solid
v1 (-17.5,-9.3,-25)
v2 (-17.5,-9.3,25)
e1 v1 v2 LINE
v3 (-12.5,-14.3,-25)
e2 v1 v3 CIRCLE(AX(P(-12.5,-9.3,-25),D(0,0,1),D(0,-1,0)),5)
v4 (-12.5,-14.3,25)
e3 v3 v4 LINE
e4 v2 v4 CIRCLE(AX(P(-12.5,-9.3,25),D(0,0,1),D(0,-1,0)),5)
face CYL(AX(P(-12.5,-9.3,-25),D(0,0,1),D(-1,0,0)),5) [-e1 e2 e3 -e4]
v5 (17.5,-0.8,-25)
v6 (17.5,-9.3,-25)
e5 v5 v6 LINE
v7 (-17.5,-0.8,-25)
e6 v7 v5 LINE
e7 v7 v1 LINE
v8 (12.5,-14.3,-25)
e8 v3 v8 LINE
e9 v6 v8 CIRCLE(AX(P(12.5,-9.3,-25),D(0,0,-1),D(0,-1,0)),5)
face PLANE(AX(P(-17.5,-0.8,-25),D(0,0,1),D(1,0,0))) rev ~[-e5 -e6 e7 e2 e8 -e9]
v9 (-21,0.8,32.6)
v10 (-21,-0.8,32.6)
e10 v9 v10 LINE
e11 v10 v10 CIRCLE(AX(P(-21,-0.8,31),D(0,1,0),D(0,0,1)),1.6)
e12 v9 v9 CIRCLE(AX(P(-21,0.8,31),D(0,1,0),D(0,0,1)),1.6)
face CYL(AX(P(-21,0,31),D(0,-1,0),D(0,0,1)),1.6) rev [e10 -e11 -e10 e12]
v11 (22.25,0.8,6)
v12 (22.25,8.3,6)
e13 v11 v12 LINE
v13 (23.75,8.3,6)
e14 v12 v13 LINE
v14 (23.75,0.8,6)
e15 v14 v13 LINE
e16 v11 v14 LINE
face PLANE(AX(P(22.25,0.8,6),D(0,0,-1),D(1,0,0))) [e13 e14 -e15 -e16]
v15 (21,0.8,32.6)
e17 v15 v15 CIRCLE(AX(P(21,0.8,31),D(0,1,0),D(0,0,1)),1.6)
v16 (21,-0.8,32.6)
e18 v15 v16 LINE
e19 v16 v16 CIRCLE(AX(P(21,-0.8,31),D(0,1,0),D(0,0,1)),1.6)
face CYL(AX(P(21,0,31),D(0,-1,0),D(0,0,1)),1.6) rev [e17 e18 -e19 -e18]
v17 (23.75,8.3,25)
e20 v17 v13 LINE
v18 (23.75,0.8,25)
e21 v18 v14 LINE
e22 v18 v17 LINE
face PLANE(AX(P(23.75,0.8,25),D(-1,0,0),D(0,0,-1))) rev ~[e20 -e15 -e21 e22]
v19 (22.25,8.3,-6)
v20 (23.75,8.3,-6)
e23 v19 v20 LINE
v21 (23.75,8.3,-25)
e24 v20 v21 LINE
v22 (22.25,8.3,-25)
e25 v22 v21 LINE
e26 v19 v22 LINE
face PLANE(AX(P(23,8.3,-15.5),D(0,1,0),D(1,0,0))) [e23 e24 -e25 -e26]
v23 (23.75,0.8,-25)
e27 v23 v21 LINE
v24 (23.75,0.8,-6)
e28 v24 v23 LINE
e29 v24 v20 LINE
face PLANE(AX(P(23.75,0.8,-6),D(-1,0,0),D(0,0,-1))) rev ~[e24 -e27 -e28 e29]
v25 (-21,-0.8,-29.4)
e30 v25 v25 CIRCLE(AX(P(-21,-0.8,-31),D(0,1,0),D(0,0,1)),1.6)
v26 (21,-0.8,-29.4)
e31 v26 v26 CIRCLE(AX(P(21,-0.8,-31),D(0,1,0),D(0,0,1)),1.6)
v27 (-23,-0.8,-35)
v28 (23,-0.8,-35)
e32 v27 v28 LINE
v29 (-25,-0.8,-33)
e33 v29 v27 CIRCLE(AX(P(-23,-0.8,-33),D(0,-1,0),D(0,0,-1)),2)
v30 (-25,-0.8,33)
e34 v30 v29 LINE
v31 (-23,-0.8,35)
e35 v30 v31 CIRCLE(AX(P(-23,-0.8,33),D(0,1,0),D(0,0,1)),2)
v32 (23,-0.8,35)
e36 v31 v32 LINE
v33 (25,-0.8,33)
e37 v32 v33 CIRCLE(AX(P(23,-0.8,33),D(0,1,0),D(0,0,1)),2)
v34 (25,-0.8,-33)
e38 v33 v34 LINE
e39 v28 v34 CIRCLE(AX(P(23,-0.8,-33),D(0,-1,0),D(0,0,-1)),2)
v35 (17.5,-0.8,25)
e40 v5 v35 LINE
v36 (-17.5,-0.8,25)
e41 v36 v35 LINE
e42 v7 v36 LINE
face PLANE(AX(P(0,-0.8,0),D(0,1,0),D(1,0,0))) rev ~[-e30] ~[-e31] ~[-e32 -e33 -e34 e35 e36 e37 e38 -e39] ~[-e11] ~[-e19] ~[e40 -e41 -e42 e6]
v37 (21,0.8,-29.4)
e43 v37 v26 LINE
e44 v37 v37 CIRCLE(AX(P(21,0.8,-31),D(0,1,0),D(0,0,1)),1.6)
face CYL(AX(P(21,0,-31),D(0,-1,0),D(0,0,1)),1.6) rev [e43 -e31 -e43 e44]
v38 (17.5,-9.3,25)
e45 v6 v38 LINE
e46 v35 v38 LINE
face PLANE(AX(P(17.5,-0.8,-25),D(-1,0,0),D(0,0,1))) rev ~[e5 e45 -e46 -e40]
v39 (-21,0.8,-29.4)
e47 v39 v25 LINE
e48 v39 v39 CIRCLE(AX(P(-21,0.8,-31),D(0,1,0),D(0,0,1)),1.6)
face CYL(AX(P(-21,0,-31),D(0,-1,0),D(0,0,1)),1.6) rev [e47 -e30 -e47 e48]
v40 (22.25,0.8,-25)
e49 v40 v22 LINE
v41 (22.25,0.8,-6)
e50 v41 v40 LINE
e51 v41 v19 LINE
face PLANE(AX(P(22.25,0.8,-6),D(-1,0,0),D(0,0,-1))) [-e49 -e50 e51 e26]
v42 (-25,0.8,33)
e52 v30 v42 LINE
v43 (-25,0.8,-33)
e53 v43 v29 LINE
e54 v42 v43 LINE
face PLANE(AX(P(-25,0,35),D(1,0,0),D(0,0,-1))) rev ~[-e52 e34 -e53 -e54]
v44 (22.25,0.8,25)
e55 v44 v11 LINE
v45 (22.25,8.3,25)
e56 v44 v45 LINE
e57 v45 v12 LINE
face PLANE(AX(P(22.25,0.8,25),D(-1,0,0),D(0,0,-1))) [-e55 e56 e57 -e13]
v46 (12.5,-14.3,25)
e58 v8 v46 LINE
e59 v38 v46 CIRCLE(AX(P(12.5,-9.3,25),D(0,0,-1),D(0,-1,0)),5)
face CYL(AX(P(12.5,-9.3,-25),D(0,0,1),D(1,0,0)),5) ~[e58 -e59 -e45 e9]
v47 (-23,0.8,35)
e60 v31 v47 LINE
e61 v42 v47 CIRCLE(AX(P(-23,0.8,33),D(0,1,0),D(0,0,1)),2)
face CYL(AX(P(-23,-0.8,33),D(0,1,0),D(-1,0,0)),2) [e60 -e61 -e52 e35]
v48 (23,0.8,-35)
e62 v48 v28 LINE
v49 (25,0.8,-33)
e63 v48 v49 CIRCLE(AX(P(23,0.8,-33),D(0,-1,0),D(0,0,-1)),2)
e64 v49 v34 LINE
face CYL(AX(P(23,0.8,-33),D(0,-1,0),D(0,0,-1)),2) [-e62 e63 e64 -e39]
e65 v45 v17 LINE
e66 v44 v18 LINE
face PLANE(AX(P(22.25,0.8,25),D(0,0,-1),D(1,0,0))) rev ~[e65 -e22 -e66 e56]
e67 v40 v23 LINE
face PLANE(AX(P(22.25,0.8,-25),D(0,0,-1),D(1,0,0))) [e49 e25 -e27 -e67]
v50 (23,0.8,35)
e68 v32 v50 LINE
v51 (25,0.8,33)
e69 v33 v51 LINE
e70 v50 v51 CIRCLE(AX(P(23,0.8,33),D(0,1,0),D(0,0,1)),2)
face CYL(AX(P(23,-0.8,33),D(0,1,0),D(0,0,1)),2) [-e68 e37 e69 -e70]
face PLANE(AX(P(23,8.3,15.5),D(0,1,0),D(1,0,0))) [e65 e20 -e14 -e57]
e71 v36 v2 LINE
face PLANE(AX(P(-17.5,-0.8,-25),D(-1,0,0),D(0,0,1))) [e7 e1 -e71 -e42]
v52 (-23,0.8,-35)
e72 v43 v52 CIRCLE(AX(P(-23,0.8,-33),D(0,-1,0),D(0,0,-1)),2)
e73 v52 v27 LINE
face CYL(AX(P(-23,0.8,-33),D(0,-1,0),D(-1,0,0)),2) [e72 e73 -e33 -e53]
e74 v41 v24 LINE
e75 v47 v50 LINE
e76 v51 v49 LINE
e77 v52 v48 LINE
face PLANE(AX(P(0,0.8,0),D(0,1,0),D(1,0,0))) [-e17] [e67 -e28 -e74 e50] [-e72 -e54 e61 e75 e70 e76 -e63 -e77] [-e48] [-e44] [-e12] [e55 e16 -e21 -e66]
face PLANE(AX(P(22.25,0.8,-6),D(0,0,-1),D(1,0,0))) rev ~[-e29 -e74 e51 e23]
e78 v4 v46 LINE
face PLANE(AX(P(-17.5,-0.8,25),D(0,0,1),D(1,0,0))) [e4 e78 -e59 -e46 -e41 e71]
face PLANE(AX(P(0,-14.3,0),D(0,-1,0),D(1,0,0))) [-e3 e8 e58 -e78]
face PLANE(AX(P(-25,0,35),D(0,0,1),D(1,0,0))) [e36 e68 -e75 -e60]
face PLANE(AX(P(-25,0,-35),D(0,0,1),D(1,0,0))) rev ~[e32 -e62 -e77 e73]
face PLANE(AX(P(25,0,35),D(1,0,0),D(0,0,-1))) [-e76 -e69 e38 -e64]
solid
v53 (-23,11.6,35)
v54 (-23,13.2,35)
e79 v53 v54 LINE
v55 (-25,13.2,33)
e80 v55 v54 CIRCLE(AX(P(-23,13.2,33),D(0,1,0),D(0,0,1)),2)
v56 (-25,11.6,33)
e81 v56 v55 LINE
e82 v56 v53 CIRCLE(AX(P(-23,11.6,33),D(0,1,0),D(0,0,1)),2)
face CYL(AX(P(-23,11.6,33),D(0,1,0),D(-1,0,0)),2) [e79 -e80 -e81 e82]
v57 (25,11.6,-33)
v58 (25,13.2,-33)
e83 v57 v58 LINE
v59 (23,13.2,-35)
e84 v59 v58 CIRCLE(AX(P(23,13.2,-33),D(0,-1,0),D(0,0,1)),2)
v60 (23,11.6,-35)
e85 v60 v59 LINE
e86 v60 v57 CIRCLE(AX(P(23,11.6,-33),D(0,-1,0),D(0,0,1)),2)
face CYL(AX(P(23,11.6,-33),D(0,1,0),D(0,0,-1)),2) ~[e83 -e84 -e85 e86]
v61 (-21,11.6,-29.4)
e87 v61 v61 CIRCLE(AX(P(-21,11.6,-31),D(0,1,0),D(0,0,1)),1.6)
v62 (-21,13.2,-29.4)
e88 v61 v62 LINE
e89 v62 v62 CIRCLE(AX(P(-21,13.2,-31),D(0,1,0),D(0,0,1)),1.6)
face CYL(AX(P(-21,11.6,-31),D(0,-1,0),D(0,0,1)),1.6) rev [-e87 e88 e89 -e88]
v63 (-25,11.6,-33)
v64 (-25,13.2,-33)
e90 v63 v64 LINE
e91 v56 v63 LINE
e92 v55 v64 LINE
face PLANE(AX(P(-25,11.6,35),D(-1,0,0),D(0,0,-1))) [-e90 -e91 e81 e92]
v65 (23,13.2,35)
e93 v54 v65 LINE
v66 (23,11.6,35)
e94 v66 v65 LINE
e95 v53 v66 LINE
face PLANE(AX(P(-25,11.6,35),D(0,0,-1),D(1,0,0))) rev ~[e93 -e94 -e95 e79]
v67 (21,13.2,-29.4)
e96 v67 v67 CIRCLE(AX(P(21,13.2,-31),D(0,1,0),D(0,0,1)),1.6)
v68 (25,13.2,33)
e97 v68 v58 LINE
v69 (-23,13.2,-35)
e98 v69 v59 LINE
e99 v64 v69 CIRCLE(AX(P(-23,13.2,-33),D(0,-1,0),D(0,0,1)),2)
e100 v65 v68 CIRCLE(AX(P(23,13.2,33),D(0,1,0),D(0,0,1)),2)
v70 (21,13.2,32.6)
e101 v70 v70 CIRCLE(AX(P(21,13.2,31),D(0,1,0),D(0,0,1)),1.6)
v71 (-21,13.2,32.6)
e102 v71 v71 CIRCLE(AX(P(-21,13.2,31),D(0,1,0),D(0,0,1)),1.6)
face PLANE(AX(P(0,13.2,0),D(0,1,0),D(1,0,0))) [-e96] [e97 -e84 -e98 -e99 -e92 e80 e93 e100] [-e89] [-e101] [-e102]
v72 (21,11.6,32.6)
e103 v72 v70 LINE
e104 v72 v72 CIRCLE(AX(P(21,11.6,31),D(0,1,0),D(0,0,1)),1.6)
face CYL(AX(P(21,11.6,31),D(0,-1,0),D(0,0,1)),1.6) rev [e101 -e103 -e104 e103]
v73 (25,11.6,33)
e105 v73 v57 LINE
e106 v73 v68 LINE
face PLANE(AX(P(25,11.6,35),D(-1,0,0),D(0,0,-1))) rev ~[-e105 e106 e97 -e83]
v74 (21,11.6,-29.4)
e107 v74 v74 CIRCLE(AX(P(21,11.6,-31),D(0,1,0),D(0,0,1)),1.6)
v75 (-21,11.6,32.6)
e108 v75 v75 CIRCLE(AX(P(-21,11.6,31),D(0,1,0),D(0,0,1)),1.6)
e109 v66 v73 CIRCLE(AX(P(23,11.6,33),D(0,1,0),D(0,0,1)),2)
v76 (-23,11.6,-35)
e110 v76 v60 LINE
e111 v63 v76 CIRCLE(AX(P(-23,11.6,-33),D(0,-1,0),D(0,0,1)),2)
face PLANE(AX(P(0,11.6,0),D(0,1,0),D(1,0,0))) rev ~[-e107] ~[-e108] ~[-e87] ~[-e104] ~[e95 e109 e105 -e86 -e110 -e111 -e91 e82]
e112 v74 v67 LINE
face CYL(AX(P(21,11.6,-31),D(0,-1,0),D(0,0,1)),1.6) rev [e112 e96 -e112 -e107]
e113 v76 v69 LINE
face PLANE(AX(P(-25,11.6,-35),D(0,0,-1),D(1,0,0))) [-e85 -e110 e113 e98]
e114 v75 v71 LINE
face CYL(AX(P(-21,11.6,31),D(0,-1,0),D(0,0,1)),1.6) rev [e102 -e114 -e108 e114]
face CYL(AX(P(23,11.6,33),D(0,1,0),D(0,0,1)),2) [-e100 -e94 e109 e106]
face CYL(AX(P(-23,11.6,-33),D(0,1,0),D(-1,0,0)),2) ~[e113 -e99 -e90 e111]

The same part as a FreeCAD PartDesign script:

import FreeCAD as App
import Part
import Sketcher
from FreeCAD import Vector


def edges_at(feature, points):
    """Names of the edges that pass closest to the given points."""
    edges = feature.Shape.Edges
    near = lambda p: min(range(len(edges)), key=lambda i: edges[i].distToShape(Part.Vertex(*p))[0])
    return sorted({f"Edge{near(p) + 1}" for p in points})


def add_polygon(sketch, points):
    """Adds a closed chain of lines whose ends are joined by coincident constraints."""
    first, n = sketch.GeometryCount, len(points)
    for a, b in zip(points, points[1:] + points[:1]):
        sketch.addGeometry(Part.LineSegment(App.Vector(*a, 0), App.Vector(*b, 0)), False)
    for i in range(n):
        sketch.addConstraint(Sketcher.Constraint("Coincident", first + i, 2, first + (i + 1) % n, 1))

doc = App.newDocument("Part")
body = doc.addObject("PartDesign::Body", "Body")

# Sketch on XZ plane
sketch1 = doc.addObject("Sketcher::SketchObject", "Sketch")
body.addObject(sketch1)
sketch1.AttachmentSupport = (doc.XZ_Plane, [""])
sketch1.MapMode = "FlatFace"
add_polygon(sketch1, [(-25, -35), (-25, 35), (25, 35), (25, -35)])  # lines 0-3
sketch1.addGeometry(Part.Circle(Vector(-21, 31, 0), Vector(0, 0, 1), 1.6), False)  # 4
sketch1.addGeometry(Part.Circle(Vector(21, 31, 0), Vector(0, 0, 1), 1.6), False)  # 5
sketch1.addGeometry(Part.Circle(Vector(-21, -31, 0), Vector(0, 0, 1), 1.6), False)  # 6
sketch1.addGeometry(Part.Circle(Vector(21, -31, 0), Vector(0, 0, 1), 1.6), False)  # 7
sketch1.addConstraint(Sketcher.Constraint("Vertical", 0))
sketch1.addConstraint(Sketcher.Constraint("Horizontal", 1))
sketch1.addConstraint(Sketcher.Constraint("Vertical", 2))
sketch1.addConstraint(Sketcher.Constraint("Horizontal", 3))
sketch1.addConstraint(Sketcher.Constraint("Equal", 4, 5))
sketch1.addConstraint(Sketcher.Constraint("Equal", 5, 6))
sketch1.addConstraint(Sketcher.Constraint("Equal", 6, 7))
sketch1.addConstraint(Sketcher.Constraint("Symmetric", 5, 3, 6, 3, -1, 1))
sketch1.addConstraint(Sketcher.Constraint("Symmetric", 4, 3, 7, 3, -1, 1))
sketch1.addConstraint(Sketcher.Constraint("Symmetric", 0, 2, 2, 2, -1, 1))
sketch1.addConstraint(Sketcher.Constraint("Symmetric", 4, 3, 5, 3, -2))
sketch1.addConstraint(Sketcher.Constraint("Diameter", 4, 3.2))
sketch1.addConstraint(Sketcher.Constraint("DistanceX", 1, 1, 1, 2, 50.0))
sketch1.addConstraint(Sketcher.Constraint("DistanceY", 0, 1, 0, 2, 70.0))
sketch1.addConstraint(Sketcher.Constraint("DistanceX", 4, 3, -1, 1, 21.0))
sketch1.addConstraint(Sketcher.Constraint("DistanceY", -1, 1, 4, 3, 31.0))
pad1 = doc.addObject("PartDesign::Pad", "Pad")
body.addObject(pad1)
pad1.Profile = sketch1
pad1.Length = 1.6
pad1.Midplane = True

# Sketch on XZ plane
sketch2 = doc.addObject("Sketcher::SketchObject", "Sketch001")
body.addObject(sketch2)
sketch2.AttachmentSupport = (doc.XZ_Plane, [""])
sketch2.MapMode = "FlatFace"
sketch2.AttachmentOffset = App.Placement(Vector(0, 0, -0.8), App.Rotation())
add_polygon(sketch2, [(22.2, -25), (22.2, -6), (23.8, -6), (23.8, -25)])  # lines 0-3
add_polygon(sketch2, [(22.2, 6), (22.2, 25), (23.8, 25), (23.8, 6)])  # lines 4-7
sketch2.addConstraint(Sketcher.Constraint("Vertical", 0))
sketch2.addConstraint(Sketcher.Constraint("Horizontal", 1))
sketch2.addConstraint(Sketcher.Constraint("Vertical", 2))
sketch2.addConstraint(Sketcher.Constraint("Horizontal", 3))
sketch2.addConstraint(Sketcher.Constraint("Vertical", 4))
sketch2.addConstraint(Sketcher.Constraint("Horizontal", 5))
sketch2.addConstraint(Sketcher.Constraint("Vertical", 6))
sketch2.addConstraint(Sketcher.Constraint("Horizontal", 7))
sketch2.addConstraint(Sketcher.Constraint("Symmetric", 3, 2, 4, 2, -1))
sketch2.addConstraint(Sketcher.Constraint("Symmetric", 1, 2, 6, 2, -1))
sketch2.addConstraint(Sketcher.Constraint("DistanceY", 0, 1, 0, 2, 19.0))
sketch2.addConstraint(Sketcher.Constraint("DistanceX", 1, 1, 1, 2, 1.5))
sketch2.addConstraint(Sketcher.Constraint("DistanceY", 0, 2, -1, 1, 6.0))
sketch2.addConstraint(Sketcher.Constraint("DistanceX", -1, 1, 0, 2, 22.25))
pad2 = doc.addObject("PartDesign::Pad", "Pad001")
body.addObject(pad2)
pad2.Profile = sketch2
pad2.Length = 7.5
pad2.Reversed = True

# Sketch on XZ plane
sketch3 = doc.addObject("Sketcher::SketchObject", "Sketch002")
body.addObject(sketch3)
sketch3.AttachmentSupport = (doc.XZ_Plane, [""])
sketch3.MapMode = "FlatFace"
sketch3.AttachmentOffset = App.Placement(Vector(0, 0, 0.8), App.Rotation())
add_polygon(sketch3, [(-18, 25), (-18, -25), (18, -25), (18, 25)])  # lines 0-3
sketch3.addConstraint(Sketcher.Constraint("Vertical", 0))
sketch3.addConstraint(Sketcher.Constraint("Horizontal", 1))
sketch3.addConstraint(Sketcher.Constraint("Vertical", 2))
sketch3.addConstraint(Sketcher.Constraint("Horizontal", 3))
sketch3.addConstraint(Sketcher.Constraint("Symmetric", 0, 2, 2, 2, -1, 1))
sketch3.addConstraint(Sketcher.Constraint("DistanceX", 1, 1, 1, 2, 35.0))
sketch3.addConstraint(Sketcher.Constraint("DistanceY", 0, 2, 0, 1, 50.0))
pad3 = doc.addObject("PartDesign::Pad", "Pad002")
body.addObject(pad3)
pad3.Profile = sketch3
pad3.Length = 13.5
doc.recompute()

fillet = doc.addObject("PartDesign::Fillet", "Fillet")
body.addObject(fillet)
fillet.Base = (pad3, edges_at(pad3, [
    (-25, 0, 35),
    (-25, 0, -35),
    (25, 0, -35),
    (25, 0, 35),
]))
fillet.Radius = 2
doc.recompute()

fillet2 = doc.addObject("PartDesign::Fillet", "Fillet001")
body.addObject(fillet2)
fillet2.Base = (fillet, edges_at(fillet, [(17.5, -14.3, 0), (-17.5, -14.3, 0)]))
fillet2.Radius = 5
body2 = doc.addObject("PartDesign::Body", "Body001")

# Sketch on XZ plane
sketch4 = doc.addObject("Sketcher::SketchObject", "Sketch003")
body2.addObject(sketch4)
sketch4.AttachmentSupport = (doc.getObject("XZ_Plane001"), [""])
sketch4.MapMode = "FlatFace"
sketch4.AttachmentOffset = App.Placement(Vector(0, 0, -11.6), App.Rotation())
add_polygon(sketch4, [(-25, -35), (-25, 35), (25, 35), (25, -35)])  # lines 0-3
sketch4.addGeometry(Part.Circle(Vector(-21, 31, 0), Vector(0, 0, 1), 1.6), False)  # 4
sketch4.addGeometry(Part.Circle(Vector(21, 31, 0), Vector(0, 0, 1), 1.6), False)  # 5
sketch4.addGeometry(Part.Circle(Vector(-21, -31, 0), Vector(0, 0, 1), 1.6), False)  # 6
sketch4.addGeometry(Part.Circle(Vector(21, -31, 0), Vector(0, 0, 1), 1.6), False)  # 7
sketch4.addConstraint(Sketcher.Constraint("Vertical", 0))
sketch4.addConstraint(Sketcher.Constraint("Horizontal", 1))
sketch4.addConstraint(Sketcher.Constraint("Vertical", 2))
sketch4.addConstraint(Sketcher.Constraint("Horizontal", 3))
sketch4.addConstraint(Sketcher.Constraint("Equal", 4, 5))
sketch4.addConstraint(Sketcher.Constraint("Equal", 5, 6))
sketch4.addConstraint(Sketcher.Constraint("Equal", 6, 7))
sketch4.addConstraint(Sketcher.Constraint("Symmetric", 5, 3, 6, 3, -1, 1))
sketch4.addConstraint(Sketcher.Constraint("Symmetric", 4, 3, 7, 3, -1, 1))
sketch4.addConstraint(Sketcher.Constraint("Symmetric", 0, 2, 2, 2, -1, 1))
sketch4.addConstraint(Sketcher.Constraint("Symmetric", 4, 3, 5, 3, -2))
sketch4.addConstraint(Sketcher.Constraint("Diameter", 4, 3.2))
sketch4.addConstraint(Sketcher.Constraint("DistanceX", 1, 1, 1, 2, 50.0))
sketch4.addConstraint(Sketcher.Constraint("DistanceY", 0, 1, 0, 2, 70.0))
sketch4.addConstraint(Sketcher.Constraint("DistanceX", 4, 3, -1, 1, 21.0))
sketch4.addConstraint(Sketcher.Constraint("DistanceY", -1, 1, 4, 3, 31.0))
pad4 = doc.addObject("PartDesign::Pad", "Pad003")
body2.addObject(pad4)
pad4.Profile = sketch4
pad4.Length = 1.6
pad4.Reversed = True
doc.recompute()

fillet3 = doc.addObject("PartDesign::Fillet", "Fillet002")
body2.addObject(fillet3)
fillet3.Base = (pad4, edges_at(pad4, [
    (-25, 12.4, 35),
    (-25, 12.4, -35),
    (25, 12.4, -35),
    (25, 12.4, 35),
]))
fillet3.Radius = 2

doc.recompute()
